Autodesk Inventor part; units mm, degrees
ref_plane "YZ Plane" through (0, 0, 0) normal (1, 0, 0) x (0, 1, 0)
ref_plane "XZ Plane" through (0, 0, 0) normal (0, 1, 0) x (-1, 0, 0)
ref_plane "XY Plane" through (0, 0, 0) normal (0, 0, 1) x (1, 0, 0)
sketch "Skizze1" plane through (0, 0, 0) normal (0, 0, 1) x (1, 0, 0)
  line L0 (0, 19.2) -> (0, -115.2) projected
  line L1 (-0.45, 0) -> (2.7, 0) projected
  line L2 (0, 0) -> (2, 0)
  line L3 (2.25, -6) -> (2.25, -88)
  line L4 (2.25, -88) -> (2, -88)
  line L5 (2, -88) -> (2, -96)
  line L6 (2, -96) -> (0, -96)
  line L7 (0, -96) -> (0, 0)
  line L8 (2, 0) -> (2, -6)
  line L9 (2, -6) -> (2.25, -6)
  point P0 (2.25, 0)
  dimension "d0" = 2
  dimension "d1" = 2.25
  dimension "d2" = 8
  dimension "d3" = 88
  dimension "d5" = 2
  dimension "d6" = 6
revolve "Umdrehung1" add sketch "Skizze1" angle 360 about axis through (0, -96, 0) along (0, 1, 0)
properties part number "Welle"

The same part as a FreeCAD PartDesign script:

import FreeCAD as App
import Part
import Sketcher

V = App.Vector


def add_polygon(sketch, points):
    """Adds a closed chain of lines whose ends are joined by coincident constraints."""
    first, n = sketch.GeometryCount, len(points)
    for a, b in zip(points, points[1:] + points[:1]):
        sketch.addGeometry(Part.LineSegment(App.Vector(*a, 0), App.Vector(*b, 0)), False)
    for i in range(n):
        sketch.addConstraint(Sketcher.Constraint("Coincident", first + i, 2, first + (i + 1) % n, 1))

doc = App.newDocument("Part")
body = doc.addObject("PartDesign::Body", "Body")

sketch1 = doc.addObject("Sketcher::SketchObject", "Sketch")
body.addObject(sketch1)
sketch1.AttachmentSupport = (doc.XY_Plane, [""])
sketch1.MapMode = "FlatFace"
add_polygon(sketch1, [(2, 0), (0, 0), (0, -96), (2, -96), (2, -88), (2.25, -88), (2.25, -6), (2, -6)])
sketch1.addConstraint(Sketcher.Constraint("Horizontal", 0))
sketch1.addConstraint(Sketcher.Constraint("Vertical", 1))
sketch1.addConstraint(Sketcher.Constraint("Horizontal", 2))
sketch1.addConstraint(Sketcher.Constraint("Vertical", 3))
sketch1.addConstraint(Sketcher.Constraint("Horizontal", 4))
sketch1.addConstraint(Sketcher.Constraint("Vertical", 5))
sketch1.addConstraint(Sketcher.Constraint("Horizontal", 6))
sketch1.addConstraint(Sketcher.Constraint("Vertical", 7))
sketch1.addConstraint(Sketcher.Constraint("Coincident", 0, 2, -1, 1))
sketch1.addConstraint(Sketcher.Constraint("Vertical", 3, 2, 6, 2))
sketch1.addConstraint(Sketcher.Constraint("DistanceX", 0, 2, 0, 1, 2.0))
sketch1.addConstraint(Sketcher.Constraint("DistanceY", 3, 1, 3, 2, 8.0))
sketch1.addConstraint(Sketcher.Constraint("DistanceY", 7, 1, 7, 2, 6.0))
sketch1.addConstraint(Sketcher.Constraint("DistanceY", 3, 2, -1, 1, 88.0))
sketch1.addConstraint(Sketcher.Constraint("DistanceX", -1, 1, 4, 2, 2.25))
revolution = doc.addObject("PartDesign::Revolution", "Revolution")
body.addObject(revolution)
revolution.Profile = sketch1
revolution.ReferenceAxis = (sketch1, ["V_Axis"])
revolution.Angle = 360

doc.recompute()
